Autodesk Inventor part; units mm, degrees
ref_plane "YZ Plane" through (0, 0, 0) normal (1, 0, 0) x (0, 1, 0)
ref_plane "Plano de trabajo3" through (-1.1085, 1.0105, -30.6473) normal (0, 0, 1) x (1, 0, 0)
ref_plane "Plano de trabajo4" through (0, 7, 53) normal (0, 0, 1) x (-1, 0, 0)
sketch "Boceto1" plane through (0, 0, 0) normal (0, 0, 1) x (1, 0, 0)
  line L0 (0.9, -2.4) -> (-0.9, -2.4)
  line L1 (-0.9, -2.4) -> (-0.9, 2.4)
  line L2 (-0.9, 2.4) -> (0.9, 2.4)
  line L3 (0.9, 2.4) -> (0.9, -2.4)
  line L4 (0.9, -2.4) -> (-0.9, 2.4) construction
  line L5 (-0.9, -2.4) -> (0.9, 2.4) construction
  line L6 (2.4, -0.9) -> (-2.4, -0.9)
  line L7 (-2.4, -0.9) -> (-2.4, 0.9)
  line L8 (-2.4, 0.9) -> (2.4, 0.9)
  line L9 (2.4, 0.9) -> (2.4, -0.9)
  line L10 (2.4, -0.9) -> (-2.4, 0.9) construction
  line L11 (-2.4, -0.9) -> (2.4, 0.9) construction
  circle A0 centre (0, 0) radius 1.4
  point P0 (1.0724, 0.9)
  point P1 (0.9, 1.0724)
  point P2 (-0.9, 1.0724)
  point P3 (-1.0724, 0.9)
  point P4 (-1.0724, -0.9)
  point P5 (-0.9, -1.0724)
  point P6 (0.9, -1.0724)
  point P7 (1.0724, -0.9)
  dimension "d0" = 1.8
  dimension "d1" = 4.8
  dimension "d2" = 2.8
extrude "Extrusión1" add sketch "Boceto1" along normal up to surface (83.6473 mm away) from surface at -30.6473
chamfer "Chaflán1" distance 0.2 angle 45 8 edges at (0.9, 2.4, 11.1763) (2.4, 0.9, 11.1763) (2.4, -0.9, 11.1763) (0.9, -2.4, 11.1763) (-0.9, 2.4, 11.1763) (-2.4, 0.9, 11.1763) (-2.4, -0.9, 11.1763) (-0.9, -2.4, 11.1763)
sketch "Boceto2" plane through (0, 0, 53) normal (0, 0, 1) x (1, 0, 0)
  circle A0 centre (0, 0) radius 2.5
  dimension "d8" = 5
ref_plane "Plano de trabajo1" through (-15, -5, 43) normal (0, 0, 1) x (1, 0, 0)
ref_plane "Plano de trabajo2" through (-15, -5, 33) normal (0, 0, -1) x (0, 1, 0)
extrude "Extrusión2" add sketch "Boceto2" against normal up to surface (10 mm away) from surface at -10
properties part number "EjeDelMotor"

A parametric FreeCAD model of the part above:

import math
import FreeCAD as App
import Part
import Sketcher

V = App.Vector


def edges_at(feature, points):
    """Names of the edges that pass closest to the given points."""
    edges = feature.Shape.Edges
    near = lambda p: min(range(len(edges)), key=lambda i: edges[i].distToShape(Part.Vertex(*p))[0])
    return sorted({f"Edge{near(p) + 1}" for p in points})

doc = App.newDocument("Part")
body = doc.addObject("PartDesign::Body", "Body")

sketch1 = doc.addObject("Sketcher::SketchObject", "Sketch")
body.addObject(sketch1)
sketch1.AttachmentSupport = (doc.XY_Plane, [""])
sketch1.MapMode = "FlatFace"
sketch1.AttachmentOffset = App.Placement(V(0, 0, -30.6473), App.Rotation())
sketch1.addGeometry([
    Part.LineSegment(V(-0.9, -2.4, 0), V(0.9, -2.4, 0)),
    Part.LineSegment(V(0.9, -2.4, 0), V(0.9, -1.072381, 0)),
    Part.ArcOfCircle(Part.Circle(V(0, 0, 0), V(0, 0, 1), 1.4), math.radians(-49.994799), math.radians(-40.005201)),
    Part.LineSegment(V(1.072381, -0.9, 0), V(2.4, -0.9, 0)),
    Part.LineSegment(V(2.4, -0.9, 0), V(2.4, 0.9, 0)),
    Part.LineSegment(V(2.4, 0.9, 0), V(1.072381, 0.9, 0)),
    Part.ArcOfCircle(Part.Circle(V(0, 0, 0), V(0, 0, 1), 1.4), math.radians(40.005201), math.radians(49.994799)),
    Part.LineSegment(V(0.9, 1.072381, 0), V(0.9, 2.4, 0)),
    Part.LineSegment(V(0.9, 2.4, 0), V(-0.9, 2.4, 0)),
    Part.LineSegment(V(-0.9, 2.4, 0), V(-0.9, 1.072381, 0)),
    Part.ArcOfCircle(Part.Circle(V(0, 0, 0), V(0, 0, 1), 1.4), math.radians(130.005201), math.radians(139.994799)),
    Part.LineSegment(V(-1.072381, 0.9, 0), V(-2.4, 0.9, 0)),
    Part.LineSegment(V(-2.4, 0.9, 0), V(-2.4, -0.9, 0)),
    Part.LineSegment(V(-2.4, -0.9, 0), V(-1.072381, -0.9, 0)),
    Part.ArcOfCircle(Part.Circle(V(0, 0, 0), V(0, 0, 1), 1.4), math.radians(-139.994799), math.radians(-130.005201)),
    Part.LineSegment(V(-0.9, -1.072381, 0), V(-0.9, -2.4, 0)),
], False)
sketch1.addConstraint([
    Sketcher.Constraint("Coincident", 0, 2, 1, 1),
    Sketcher.Constraint("Coincident", 1, 2, 2, 1),
    Sketcher.Constraint("Coincident", 2, 2, 3, 1),
    Sketcher.Constraint("Coincident", 3, 2, 4, 1),
    Sketcher.Constraint("Coincident", 4, 2, 5, 1),
    Sketcher.Constraint("Coincident", 5, 2, 6, 1),
    Sketcher.Constraint("Coincident", 6, 2, 7, 1),
    Sketcher.Constraint("Coincident", 7, 2, 8, 1),
    Sketcher.Constraint("Coincident", 8, 2, 9, 1),
    Sketcher.Constraint("Coincident", 9, 2, 10, 1),
    Sketcher.Constraint("Coincident", 10, 2, 11, 1),
    Sketcher.Constraint("Coincident", 11, 2, 12, 1),
    Sketcher.Constraint("Coincident", 12, 2, 13, 1),
    Sketcher.Constraint("Coincident", 13, 2, 14, 1),
    Sketcher.Constraint("Coincident", 14, 2, 15, 1),
    Sketcher.Constraint("Coincident", 15, 2, 0, 1),
    Sketcher.Constraint("Horizontal", 0),
    Sketcher.Constraint("Vertical", 1),
    Sketcher.Constraint("Horizontal", 3),
    Sketcher.Constraint("Vertical", 4),
    Sketcher.Constraint("Horizontal", 5),
    Sketcher.Constraint("Vertical", 7),
    Sketcher.Constraint("Horizontal", 8),
    Sketcher.Constraint("Vertical", 9),
    Sketcher.Constraint("Horizontal", 11),
    Sketcher.Constraint("Vertical", 12),
    Sketcher.Constraint("Horizontal", 13),
    Sketcher.Constraint("Vertical", 15),
    Sketcher.Constraint("Coincident", 2, 3, -1, 1),
    Sketcher.Constraint("Coincident", 6, 3, -1, 1),
    Sketcher.Constraint("Coincident", 10, 3, -1, 1),
    Sketcher.Constraint("Coincident", 14, 3, -1, 1),
    Sketcher.Constraint("Equal", 2, 6),
    Sketcher.Constraint("Equal", 6, 10),
    Sketcher.Constraint("Equal", 10, 14),
    Sketcher.Constraint("Symmetric", 0, 2, 8, 2, -1, 1),
    Sketcher.Constraint("Symmetric", 3, 2, 11, 2, -1, 1),
    Sketcher.Constraint("Horizontal", 6, 2, 9, 2),
    Sketcher.Constraint("Horizontal", 5, 2, 10, 2),
    Sketcher.Constraint("Horizontal", 3, 2, 12, 2),
    Sketcher.Constraint("Horizontal", 1, 2, 14, 2),
    Sketcher.Constraint("Equal", 13, 1),
    Sketcher.Constraint("Equal", 8, 4),
    Sketcher.Constraint("Radius", 2, 1.4),
    Sketcher.Constraint("DistanceX", 0, 1, 0, 2, 1.8),
    Sketcher.Constraint("DistanceY", 0, 2, -1, 1, 2.4),
])
pad1 = doc.addObject("PartDesign::Pad", "Pad")
body.addObject(pad1)
pad1.Profile = sketch1
pad1.Length = 83.6473
doc.recompute()

chamfer = doc.addObject("PartDesign::Chamfer", "Chamfer")
body.addObject(chamfer)
chamfer.Base = (pad1, edges_at(pad1, [
    (0.9, 2.4, 11.176),
    (2.4, 0.9, 11.176),
    (2.4, -0.9, 11.176),
    (0.9, -2.4, 11.176),
    (-0.9, 2.4, 11.176),
    (-2.4, 0.9, 11.176),
    (-2.4, -0.9, 11.176),
    (-0.9, -2.4, 11.176),
]))
chamfer.Size = 0.2

sketch2 = doc.addObject("Sketcher::SketchObject", "Sketch001")
body.addObject(sketch2)
sketch2.AttachmentSupport = (doc.XY_Plane, [""])
sketch2.MapMode = "FlatFace"
sketch2.AttachmentOffset = App.Placement(V(0, 0, 43), App.Rotation())
sketch2.addGeometry(Part.Circle(V(0, 0, 0), V(0, 0, 1), 2.5), False)
sketch2.addConstraint([
    Sketcher.Constraint("Coincident", 0, 3, -1, 1),
    Sketcher.Constraint("Diameter", 0, 5.0),
])
pad2 = doc.addObject("PartDesign::Pad", "Pad001")
body.addObject(pad2)
pad2.Profile = sketch2
pad2.Length = 10
pad2.Reversed = True

doc.recompute()
